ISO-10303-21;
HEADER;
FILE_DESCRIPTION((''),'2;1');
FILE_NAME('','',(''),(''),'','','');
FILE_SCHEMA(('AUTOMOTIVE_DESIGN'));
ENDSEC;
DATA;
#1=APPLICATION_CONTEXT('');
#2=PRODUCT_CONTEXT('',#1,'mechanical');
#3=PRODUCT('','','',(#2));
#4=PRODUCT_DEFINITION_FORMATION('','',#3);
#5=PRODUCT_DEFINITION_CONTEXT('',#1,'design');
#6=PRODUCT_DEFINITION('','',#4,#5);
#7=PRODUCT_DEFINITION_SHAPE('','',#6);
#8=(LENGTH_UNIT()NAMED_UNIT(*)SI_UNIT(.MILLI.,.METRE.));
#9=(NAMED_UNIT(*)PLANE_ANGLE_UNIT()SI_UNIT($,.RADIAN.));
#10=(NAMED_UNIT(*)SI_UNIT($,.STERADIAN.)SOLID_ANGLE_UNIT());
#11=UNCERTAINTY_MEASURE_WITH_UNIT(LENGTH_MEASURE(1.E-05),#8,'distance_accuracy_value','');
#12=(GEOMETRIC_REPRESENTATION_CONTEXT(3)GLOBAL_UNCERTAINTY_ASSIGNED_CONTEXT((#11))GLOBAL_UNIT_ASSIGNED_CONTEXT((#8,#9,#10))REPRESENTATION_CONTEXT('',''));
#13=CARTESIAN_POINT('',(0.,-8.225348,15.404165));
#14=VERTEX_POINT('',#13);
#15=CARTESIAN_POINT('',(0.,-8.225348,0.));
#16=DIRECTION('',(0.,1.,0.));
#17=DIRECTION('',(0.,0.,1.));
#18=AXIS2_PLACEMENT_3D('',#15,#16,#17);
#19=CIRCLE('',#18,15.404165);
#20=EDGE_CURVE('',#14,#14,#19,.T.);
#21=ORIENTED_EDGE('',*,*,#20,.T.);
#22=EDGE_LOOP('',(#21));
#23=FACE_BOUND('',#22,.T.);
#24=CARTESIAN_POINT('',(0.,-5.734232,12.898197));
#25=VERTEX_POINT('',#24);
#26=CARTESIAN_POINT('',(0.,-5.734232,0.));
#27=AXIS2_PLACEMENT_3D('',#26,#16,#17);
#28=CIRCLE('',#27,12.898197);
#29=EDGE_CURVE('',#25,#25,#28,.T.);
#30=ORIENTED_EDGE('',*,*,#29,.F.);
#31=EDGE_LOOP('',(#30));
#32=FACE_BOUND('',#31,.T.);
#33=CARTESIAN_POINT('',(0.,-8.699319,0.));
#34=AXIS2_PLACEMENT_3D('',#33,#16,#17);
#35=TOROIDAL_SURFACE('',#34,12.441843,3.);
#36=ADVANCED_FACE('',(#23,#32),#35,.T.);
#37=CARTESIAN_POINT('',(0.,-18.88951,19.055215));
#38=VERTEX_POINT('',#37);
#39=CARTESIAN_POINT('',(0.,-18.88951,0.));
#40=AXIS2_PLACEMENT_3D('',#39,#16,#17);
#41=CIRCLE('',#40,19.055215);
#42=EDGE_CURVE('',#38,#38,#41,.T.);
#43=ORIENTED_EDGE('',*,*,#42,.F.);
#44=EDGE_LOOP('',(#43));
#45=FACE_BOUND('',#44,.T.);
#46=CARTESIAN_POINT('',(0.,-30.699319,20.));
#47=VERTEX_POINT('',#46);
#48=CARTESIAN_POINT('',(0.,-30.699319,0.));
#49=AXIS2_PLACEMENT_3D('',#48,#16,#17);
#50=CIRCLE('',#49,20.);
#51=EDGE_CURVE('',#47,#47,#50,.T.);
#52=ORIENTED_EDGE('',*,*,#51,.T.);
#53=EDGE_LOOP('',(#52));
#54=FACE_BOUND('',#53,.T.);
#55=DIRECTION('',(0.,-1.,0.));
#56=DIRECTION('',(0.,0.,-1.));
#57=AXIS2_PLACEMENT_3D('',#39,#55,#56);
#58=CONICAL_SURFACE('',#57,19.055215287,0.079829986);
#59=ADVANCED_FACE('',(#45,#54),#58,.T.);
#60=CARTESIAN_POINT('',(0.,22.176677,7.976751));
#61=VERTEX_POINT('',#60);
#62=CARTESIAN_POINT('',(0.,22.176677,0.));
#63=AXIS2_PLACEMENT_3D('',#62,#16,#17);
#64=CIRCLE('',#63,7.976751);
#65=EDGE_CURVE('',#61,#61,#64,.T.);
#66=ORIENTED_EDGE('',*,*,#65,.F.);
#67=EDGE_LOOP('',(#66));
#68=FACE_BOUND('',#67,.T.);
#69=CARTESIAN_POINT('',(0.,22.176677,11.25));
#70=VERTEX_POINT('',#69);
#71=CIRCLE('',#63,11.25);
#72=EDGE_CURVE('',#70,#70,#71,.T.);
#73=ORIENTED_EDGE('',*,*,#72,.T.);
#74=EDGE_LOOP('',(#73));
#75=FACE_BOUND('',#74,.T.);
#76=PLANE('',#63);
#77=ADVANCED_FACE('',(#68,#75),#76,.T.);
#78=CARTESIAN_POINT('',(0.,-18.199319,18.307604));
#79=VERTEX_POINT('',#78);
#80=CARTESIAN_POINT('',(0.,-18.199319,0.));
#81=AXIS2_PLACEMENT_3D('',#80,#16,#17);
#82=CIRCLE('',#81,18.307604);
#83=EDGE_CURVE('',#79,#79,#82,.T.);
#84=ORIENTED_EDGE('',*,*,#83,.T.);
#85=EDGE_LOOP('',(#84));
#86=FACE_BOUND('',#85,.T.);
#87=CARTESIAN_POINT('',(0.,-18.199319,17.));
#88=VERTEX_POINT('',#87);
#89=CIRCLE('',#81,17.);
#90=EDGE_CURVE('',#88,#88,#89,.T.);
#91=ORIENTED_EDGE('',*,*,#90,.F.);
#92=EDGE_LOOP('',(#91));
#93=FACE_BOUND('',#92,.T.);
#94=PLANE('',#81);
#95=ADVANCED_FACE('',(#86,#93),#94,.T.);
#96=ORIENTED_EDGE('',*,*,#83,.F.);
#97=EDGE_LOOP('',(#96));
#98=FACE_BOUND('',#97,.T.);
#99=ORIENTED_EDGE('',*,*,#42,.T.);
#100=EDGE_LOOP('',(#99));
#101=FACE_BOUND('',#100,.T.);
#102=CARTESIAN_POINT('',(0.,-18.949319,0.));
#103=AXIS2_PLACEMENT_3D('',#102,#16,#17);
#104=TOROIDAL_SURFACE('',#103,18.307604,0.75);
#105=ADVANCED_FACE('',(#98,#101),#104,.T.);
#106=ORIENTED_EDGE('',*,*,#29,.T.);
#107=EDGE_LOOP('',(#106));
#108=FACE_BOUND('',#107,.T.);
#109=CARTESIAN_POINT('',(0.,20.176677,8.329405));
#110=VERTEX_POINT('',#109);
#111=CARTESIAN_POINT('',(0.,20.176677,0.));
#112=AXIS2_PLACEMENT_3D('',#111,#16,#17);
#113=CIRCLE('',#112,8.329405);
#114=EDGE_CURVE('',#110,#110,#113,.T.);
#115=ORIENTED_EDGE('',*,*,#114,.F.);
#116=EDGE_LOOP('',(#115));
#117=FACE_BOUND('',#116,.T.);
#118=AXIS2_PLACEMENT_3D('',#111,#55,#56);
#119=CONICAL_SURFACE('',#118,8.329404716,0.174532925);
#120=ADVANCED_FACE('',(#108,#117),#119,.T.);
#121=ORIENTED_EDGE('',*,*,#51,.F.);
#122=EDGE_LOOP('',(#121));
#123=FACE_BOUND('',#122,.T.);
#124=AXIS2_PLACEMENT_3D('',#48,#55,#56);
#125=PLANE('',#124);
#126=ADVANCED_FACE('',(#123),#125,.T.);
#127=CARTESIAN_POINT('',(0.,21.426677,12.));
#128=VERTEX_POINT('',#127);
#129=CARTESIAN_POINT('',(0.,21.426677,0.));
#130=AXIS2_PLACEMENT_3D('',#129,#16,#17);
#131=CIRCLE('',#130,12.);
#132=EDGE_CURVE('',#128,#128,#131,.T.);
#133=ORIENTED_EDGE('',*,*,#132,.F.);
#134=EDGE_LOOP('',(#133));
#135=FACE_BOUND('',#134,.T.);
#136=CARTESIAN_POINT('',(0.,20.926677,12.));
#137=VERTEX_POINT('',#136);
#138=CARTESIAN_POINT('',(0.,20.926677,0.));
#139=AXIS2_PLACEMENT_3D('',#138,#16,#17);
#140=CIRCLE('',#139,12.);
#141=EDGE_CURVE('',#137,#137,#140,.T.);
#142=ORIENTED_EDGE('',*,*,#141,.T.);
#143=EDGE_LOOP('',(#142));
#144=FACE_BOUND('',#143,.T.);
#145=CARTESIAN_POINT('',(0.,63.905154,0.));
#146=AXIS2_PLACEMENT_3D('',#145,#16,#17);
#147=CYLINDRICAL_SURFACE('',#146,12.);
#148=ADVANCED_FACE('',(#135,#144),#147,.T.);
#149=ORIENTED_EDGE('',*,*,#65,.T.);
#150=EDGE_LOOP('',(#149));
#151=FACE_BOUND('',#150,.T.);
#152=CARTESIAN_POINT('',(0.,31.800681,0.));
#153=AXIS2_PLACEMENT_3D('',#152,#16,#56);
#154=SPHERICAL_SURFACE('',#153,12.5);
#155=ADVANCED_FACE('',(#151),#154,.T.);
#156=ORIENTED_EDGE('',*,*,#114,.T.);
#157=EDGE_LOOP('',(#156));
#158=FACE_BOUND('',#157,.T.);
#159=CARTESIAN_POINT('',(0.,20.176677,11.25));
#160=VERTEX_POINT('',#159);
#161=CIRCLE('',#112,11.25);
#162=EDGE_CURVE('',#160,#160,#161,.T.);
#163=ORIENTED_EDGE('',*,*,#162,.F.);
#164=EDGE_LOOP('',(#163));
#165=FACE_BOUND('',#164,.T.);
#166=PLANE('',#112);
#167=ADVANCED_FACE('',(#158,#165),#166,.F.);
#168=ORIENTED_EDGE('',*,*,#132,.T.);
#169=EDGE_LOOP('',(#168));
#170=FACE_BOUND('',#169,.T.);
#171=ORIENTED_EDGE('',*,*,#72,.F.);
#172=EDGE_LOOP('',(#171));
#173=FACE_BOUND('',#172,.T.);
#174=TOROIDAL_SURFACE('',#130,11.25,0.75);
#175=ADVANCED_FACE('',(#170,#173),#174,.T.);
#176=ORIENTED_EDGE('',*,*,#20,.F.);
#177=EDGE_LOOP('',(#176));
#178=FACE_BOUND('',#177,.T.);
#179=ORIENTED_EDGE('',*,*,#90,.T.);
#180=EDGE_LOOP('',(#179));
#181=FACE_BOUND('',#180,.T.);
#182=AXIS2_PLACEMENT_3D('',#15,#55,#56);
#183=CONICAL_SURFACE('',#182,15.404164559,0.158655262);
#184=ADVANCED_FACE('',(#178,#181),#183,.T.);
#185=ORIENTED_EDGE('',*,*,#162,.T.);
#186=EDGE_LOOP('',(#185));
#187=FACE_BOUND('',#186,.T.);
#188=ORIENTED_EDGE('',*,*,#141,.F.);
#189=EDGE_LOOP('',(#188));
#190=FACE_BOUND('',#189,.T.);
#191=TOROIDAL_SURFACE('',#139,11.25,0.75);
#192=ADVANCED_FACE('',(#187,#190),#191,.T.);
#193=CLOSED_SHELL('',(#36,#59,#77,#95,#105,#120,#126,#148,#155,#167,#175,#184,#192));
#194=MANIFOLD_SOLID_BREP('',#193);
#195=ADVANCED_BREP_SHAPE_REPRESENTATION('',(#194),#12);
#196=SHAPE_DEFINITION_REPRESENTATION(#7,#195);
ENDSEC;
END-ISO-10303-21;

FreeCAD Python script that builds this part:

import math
import FreeCAD as App
import Part
import Sketcher
Q = App.Units.Quantity

doc = App.newDocument("Part")
body = doc.addObject("PartDesign::Body", "Body")

sketch1 = body.newObject("Sketcher::SketchObject", "Sketch")
sketch1.AttachmentSupport = (doc.getObject("YZ_Plane"), [""])
sketch1.MapMode = "FlatFace"
sketch1.addGeometry(Part.ArcOfCircle(Part.Circle(App.Vector(31.8, 0, 0), App.Vector(0, 0, 1), 12.5), math.radians(-140), math.radians(0)), False)
sketch1.addGeometry(Part.LineSegment(App.Vector(44.3, 0, 0), App.Vector(-30.7, 0, 0)), False)
sketch1.addGeometry(Part.LineSegment(App.Vector(-30.7, 0, 0), App.Vector(-30.7, -20, 0)), False)
sketch1.addGeometry(Part.LineSegment(App.Vector(-30.7, -20, 0), App.Vector(-18.9, -19.1, 0)), False)
sketch1.addGeometry(Part.ArcOfCircle(Part.Circle(App.Vector(-18.9, -18.3, 0), App.Vector(0, 0, 1), 0.7), math.radians(-85), math.radians(0)), False)
sketch1.addGeometry(Part.LineSegment(App.Vector(-18.2, -18.3, 0), App.Vector(-18.2, -17, 0)), False)
sketch1.addGeometry(Part.LineSegment(App.Vector(-18.2, -17, 0), App.Vector(-8.2, -15.4, 0)), False)
sketch1.addGeometry(Part.ArcOfCircle(Part.Circle(App.Vector(-8.7, -12.4, 0), App.Vector(0, 0, 1), 3), math.radians(-81), math.radians(-9)), False)
sketch1.addGeometry(Part.LineSegment(App.Vector(-5.7, -12.9, 0), App.Vector(20.2, -8.3, 0)), False)
sketch1.addGeometry(Part.LineSegment(App.Vector(20.2, -8.3, 0), App.Vector(20.2, -11.2, 0)), False)
sketch1.addGeometry(Part.ArcOfCircle(Part.Circle(App.Vector(20.9, -11.2, 0), App.Vector(0, 0, 1), 0.8), math.radians(180), math.radians(270)), False)
sketch1.addGeometry(Part.LineSegment(App.Vector(20.9, -12, 0), App.Vector(21.4, -12, 0)), False)
sketch1.addGeometry(Part.ArcOfCircle(Part.Circle(App.Vector(21.4, -11.2, 0), App.Vector(0, 0, 1), 0.8), math.radians(-90), math.radians(0)), False)
sketch1.addGeometry(Part.LineSegment(App.Vector(22.2, -11.2, 0), App.Vector(22.2, -8, 0)), False)
sketch1.addConstraint(Sketcher.Constraint("Coincident", 0, 2, 1, 1))
sketch1.addConstraint(Sketcher.Constraint("Coincident", 1, 2, 2, 1))
sketch1.addConstraint(Sketcher.Constraint("Coincident", 2, 2, 3, 1))
sketch1.addConstraint(Sketcher.Constraint("Tangent", 3, 2, 4, 1))
sketch1.addConstraint(Sketcher.Constraint("Tangent", 4, 2, 5, 1))
sketch1.addConstraint(Sketcher.Constraint("Coincident", 5, 2, 6, 1))
sketch1.addConstraint(Sketcher.Constraint("Tangent", 6, 2, 7, 1))
sketch1.addConstraint(Sketcher.Constraint("Coincident", 7, 2, 8, 1))
sketch1.addConstraint(Sketcher.Constraint("Coincident", 8, 2, 9, 1))
sketch1.addConstraint(Sketcher.Constraint("Tangent", 9, 2, 10, 1))
sketch1.addConstraint(Sketcher.Constraint("Tangent", 10, 2, 11, 1))
sketch1.addConstraint(Sketcher.Constraint("Tangent", 11, 2, 12, 1))
sketch1.addConstraint(Sketcher.Constraint("Tangent", 12, 2, 13, 1))
sketch1.addConstraint(Sketcher.Constraint("Coincident", 13, 2, 0, 1))
sketch1.addConstraint(Sketcher.Constraint("Horizontal", 1))
sketch1.addConstraint(Sketcher.Constraint("Vertical", 2))
sketch1.addConstraint(Sketcher.Constraint("Vertical", 5))
sketch1.addConstraint(Sketcher.Constraint("Vertical", 9))
sketch1.addConstraint(Sketcher.Constraint("Horizontal", 11))
sketch1.addConstraint(Sketcher.Constraint("Vertical", 13))
sketch1.addConstraint(Sketcher.Constraint("Equal", 4, 10))
sketch1.addConstraint(Sketcher.Constraint("Equal", 10, 12))
sketch1.addConstraint(Sketcher.Constraint("PointOnObject", 0, 3, -1))
sketch1.addConstraint(Sketcher.Constraint("PointOnObject", 0, 2, -1))
sketch1.addConstraint(Sketcher.Constraint("Radius", 7, Q("3 mm")))
sketch1.addConstraint(Sketcher.Constraint("Radius", 0, Q("12.5 mm")))
sketch1.addConstraint(Sketcher.Constraint("DistanceX", 1, 2, 1, 1, Q("75 mm")))
sketch1.addConstraint(Sketcher.Constraint("DistanceY", 2, 2, 2, 1, Q("20 mm")))
sketch1.addConstraint(Sketcher.Constraint("Angle", 8, Q("10 deg")))
sketch1.addConstraint(Sketcher.Constraint("Radius", 4, Q("0.75 mm")))
sketch1.addConstraint(Sketcher.Constraint("DistanceX", 11, 1, 11, 2, Q("0.5 mm")))
sketch1.addConstraint(Sketcher.Constraint("DistanceY", 5, 2, -1, 1, Q("17 mm")))
sketch1.addConstraint(Sketcher.Constraint("DistanceY", 10, 2, -1, 1, Q("12 mm")))
sketch1.addConstraint(Sketcher.Constraint("DistanceX", 7, 3, 0, 2, Q("53 mm")))
sketch1.addConstraint(Sketcher.Constraint("DistanceX", 4, 2, 7, 3, Q("9.5 mm")))
sketch1.addConstraint(Sketcher.Constraint("DistanceY", 13, 1, 13, 2, Q("3.273249 mm")))
sketch1.addConstraint(Sketcher.Constraint("Distance", 3, Q("11.84754 mm")))
sketch1.addConstraint(Sketcher.Constraint("Distance", 6, Q("10.100832 mm")))
sketch1.addConstraint(Sketcher.Constraint("DistanceY", 9, 2, 9, 1, Q("2.920595 mm")))
sketch1.addConstraint(Sketcher.Constraint("DistanceX", -1, 1, 0, 3, Q("31.800681 mm")))
revolution = body.newObject("PartDesign::Revolution", "Revolution")
revolution.Profile = sketch1
revolution.ReferenceAxis = (sketch1, ["H_Axis"])
revolution.Angle = 360

doc.recompute()
